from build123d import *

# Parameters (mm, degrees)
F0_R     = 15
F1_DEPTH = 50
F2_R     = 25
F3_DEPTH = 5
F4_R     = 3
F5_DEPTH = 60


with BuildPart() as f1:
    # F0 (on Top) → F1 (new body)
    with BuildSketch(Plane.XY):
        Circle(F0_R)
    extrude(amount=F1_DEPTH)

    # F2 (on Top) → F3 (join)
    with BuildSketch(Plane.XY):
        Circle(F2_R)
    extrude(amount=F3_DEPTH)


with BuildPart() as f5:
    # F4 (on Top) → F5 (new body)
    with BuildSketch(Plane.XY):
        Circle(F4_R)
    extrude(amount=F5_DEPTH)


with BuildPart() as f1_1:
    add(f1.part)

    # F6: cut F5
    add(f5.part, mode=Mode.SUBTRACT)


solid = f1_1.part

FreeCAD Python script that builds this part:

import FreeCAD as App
import Part
import Sketcher

doc = App.newDocument("Part")
body = doc.addObject("PartDesign::Body", "Body")

sketch1 = body.newObject("Sketcher::SketchObject", "Sketch")
sketch1.AttachmentSupport = (doc.getObject("XY_Plane"), [""])
sketch1.MapMode = "FlatFace"
sketch1.addGeometry(Part.Circle(App.Vector(0, 0, 0), App.Vector(0, 0, 1), 15), False)
sketch1.addConstraint(Sketcher.Constraint("Coincident", 0, 3, -1, 1))
sketch1.addConstraint(Sketcher.Constraint("Diameter", 0, 30.0))
pad1 = body.newObject("PartDesign::Pad", "Pad")
pad1.Profile = sketch1
pad1.Length = 50

sketch2 = body.newObject("Sketcher::SketchObject", "Sketch001")
sketch2.AttachmentSupport = (doc.getObject("XY_Plane"), [""])
sketch2.MapMode = "FlatFace"
sketch2.addGeometry(Part.Circle(App.Vector(0, 0, 0), App.Vector(0, 0, 1), 25), False)
sketch2.addConstraint(Sketcher.Constraint("Coincident", 0, 3, -1, 1))
sketch2.addConstraint(Sketcher.Constraint("Diameter", 0, 50.0))
pad2 = body.newObject("PartDesign::Pad", "Pad001")
pad2.Profile = sketch2
pad2.Length = 5
body2 = doc.addObject("PartDesign::Body", "Body001")

sketch3 = body2.newObject("Sketcher::SketchObject", "Sketch002")
sketch3.AttachmentSupport = (doc.getObject("XY_Plane001"), [""])
sketch3.MapMode = "FlatFace"
sketch3.addGeometry(Part.Circle(App.Vector(0, 0, 0), App.Vector(0, 0, 1), 3), False)
sketch3.addConstraint(Sketcher.Constraint("Coincident", 0, 3, -1, 1))
sketch3.addConstraint(Sketcher.Constraint("Diameter", 0, 6.0))
pad3 = body2.newObject("PartDesign::Pad", "Pad002")
pad3.Profile = sketch3
pad3.Length = 60
doc.recompute()

boolean = body.newObject("PartDesign::Boolean", "Boolean")
boolean.Type = "Cut"
boolean.addObjects([body2])

doc.recompute()
